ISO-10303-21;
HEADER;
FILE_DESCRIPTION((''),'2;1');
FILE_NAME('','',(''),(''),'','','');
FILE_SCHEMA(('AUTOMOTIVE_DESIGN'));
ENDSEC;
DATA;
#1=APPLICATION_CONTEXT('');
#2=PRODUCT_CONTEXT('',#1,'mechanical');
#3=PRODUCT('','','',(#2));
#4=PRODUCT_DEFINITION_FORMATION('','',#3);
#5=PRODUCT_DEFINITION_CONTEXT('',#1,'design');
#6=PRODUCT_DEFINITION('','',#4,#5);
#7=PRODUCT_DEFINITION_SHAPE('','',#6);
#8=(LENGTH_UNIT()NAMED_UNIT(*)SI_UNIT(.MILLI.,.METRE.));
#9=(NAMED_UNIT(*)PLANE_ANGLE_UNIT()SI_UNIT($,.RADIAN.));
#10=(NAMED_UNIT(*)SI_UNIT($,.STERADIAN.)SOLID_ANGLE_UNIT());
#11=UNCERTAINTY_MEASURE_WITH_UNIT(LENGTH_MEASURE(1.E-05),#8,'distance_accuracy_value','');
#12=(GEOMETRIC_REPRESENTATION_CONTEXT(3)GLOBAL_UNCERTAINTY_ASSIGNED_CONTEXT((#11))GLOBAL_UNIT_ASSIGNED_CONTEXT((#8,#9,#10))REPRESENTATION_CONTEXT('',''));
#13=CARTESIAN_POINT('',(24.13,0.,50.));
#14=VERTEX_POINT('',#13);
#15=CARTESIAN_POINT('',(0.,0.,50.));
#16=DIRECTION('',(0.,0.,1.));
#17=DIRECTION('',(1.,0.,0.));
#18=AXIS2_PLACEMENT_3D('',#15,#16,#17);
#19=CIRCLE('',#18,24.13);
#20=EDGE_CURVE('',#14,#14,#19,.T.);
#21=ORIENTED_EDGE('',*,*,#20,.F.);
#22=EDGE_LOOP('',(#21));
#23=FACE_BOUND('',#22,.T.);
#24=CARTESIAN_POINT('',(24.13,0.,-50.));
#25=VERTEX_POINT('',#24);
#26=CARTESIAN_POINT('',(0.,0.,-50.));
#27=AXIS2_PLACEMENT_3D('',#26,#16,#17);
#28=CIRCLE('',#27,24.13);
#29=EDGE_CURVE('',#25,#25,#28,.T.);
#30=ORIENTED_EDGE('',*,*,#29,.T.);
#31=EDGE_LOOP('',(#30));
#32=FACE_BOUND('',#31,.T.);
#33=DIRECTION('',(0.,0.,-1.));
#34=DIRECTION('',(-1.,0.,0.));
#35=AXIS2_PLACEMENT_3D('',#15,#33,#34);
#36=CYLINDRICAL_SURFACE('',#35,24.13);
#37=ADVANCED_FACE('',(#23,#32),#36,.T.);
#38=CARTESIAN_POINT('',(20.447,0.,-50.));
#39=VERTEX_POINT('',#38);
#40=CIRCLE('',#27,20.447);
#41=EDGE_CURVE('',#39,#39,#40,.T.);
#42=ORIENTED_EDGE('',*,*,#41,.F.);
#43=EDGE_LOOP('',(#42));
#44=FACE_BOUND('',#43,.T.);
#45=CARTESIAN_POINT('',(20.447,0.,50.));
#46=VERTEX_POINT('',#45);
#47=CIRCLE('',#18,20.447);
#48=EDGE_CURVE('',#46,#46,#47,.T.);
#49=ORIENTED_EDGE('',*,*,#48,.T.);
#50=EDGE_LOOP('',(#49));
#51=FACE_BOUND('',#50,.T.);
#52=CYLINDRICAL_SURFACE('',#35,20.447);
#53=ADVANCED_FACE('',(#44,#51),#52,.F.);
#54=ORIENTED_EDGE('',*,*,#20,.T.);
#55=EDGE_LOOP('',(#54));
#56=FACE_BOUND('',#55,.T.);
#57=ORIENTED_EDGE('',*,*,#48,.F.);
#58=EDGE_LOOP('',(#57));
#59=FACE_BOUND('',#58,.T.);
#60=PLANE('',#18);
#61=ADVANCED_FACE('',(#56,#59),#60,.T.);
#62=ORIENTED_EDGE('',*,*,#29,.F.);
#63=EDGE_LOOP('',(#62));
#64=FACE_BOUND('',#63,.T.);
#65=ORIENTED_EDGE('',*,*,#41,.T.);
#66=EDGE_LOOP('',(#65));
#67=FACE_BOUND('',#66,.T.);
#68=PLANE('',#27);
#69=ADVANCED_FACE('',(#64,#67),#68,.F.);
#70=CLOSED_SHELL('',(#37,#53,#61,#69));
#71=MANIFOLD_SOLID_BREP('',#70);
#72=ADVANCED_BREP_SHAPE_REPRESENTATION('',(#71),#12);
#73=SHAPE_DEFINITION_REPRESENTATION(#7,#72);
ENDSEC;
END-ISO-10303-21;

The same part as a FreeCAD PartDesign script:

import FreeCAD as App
import Part
import Sketcher

V = App.Vector
Q = App.Units.Quantity

doc = App.newDocument("Part")
body = doc.addObject("PartDesign::Body", "Body")

# Sketch on XY plane
sketch1 = doc.addObject("Sketcher::SketchObject", "Sketch")
body.addObject(sketch1)
sketch1.AttachmentSupport = (doc.XY_Plane, [""])
sketch1.MapMode = "FlatFace"
sketch1.addGeometry([
    Part.Circle(V(0, 0, 0), V(0, 0, 1), 24),
    Part.Circle(V(0, 0, 0), V(0, 0, 1), 20),
], False)
sketch1.addConstraint([
    Sketcher.Constraint("Coincident", 0, 3, -1, 1),
    Sketcher.Constraint("Coincident", 1, 3, -1, 1),
    Sketcher.Constraint("Diameter", 0, Q("1.9 in")),
    Sketcher.Constraint("Diameter", 1, Q("1.61 in")),
])
pad1 = doc.addObject("PartDesign::Pad", "Pad")
body.addObject(pad1)
pad1.Profile = sketch1
pad1.Length = 100
pad1.Midplane = True

doc.recompute()
